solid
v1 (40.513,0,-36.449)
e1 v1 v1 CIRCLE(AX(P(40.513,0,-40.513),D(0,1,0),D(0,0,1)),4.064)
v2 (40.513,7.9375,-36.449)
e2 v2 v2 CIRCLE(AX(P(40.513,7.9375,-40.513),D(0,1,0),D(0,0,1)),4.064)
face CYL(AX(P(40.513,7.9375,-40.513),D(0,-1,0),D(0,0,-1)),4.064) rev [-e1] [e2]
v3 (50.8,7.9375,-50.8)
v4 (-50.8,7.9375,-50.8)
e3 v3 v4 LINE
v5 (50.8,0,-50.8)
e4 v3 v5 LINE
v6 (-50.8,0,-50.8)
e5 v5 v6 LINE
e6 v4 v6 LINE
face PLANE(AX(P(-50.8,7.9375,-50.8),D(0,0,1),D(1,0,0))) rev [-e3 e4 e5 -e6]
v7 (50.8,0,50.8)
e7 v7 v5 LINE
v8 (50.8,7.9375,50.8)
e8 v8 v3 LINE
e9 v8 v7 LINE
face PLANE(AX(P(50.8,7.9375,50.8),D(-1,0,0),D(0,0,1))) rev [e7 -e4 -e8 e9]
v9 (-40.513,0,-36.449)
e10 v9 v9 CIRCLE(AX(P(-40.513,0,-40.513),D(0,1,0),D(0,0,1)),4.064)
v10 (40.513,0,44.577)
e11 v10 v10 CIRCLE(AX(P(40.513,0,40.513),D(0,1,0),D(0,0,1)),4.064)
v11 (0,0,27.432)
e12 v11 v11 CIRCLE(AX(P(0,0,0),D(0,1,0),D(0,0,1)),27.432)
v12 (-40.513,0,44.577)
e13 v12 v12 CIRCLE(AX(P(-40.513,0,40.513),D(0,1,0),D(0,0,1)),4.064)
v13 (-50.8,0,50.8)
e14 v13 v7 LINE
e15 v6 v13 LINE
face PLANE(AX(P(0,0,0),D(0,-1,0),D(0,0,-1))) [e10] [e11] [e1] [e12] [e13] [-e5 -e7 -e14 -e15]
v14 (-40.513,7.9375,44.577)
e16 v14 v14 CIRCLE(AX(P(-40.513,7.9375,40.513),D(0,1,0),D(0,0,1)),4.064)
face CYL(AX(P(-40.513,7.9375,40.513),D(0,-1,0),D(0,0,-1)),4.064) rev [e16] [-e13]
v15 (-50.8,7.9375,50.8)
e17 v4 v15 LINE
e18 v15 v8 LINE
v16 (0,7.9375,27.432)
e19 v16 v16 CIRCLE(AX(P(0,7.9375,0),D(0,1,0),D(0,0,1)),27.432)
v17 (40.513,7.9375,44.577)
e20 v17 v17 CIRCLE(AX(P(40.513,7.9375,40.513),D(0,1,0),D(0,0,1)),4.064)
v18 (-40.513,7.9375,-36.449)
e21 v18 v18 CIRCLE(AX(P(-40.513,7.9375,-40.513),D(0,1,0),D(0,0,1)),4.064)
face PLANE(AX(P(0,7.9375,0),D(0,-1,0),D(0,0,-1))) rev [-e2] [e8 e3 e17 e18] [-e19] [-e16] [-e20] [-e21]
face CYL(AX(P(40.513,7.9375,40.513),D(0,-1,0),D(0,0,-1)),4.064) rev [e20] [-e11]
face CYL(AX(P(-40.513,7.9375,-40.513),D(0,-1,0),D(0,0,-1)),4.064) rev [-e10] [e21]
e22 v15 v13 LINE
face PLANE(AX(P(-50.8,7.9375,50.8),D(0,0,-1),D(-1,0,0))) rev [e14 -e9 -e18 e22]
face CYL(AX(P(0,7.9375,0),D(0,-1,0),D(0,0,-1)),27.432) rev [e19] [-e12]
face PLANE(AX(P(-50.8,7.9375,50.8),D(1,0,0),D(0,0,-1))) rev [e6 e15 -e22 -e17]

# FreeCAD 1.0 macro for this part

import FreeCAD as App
import Part
import Sketcher

V = App.Vector
Q = App.Units.Quantity

doc = App.newDocument("Part")
body = doc.addObject("PartDesign::Body", "Body")

sketch1 = body.newObject("Sketcher::SketchObject", "Sketch")
sketch1.AttachmentSupport = (doc.getObject("XZ_Plane"), [""])
sketch1.MapMode = "FlatFace"
sketch1.addGeometry([
    Part.LineSegment(V(-50.8, -50.8, 0), V(-50.8, 50.8, 0)),
    Part.LineSegment(V(-50.8, 50.8, 0), V(50.8, 50.8, 0)),
    Part.LineSegment(V(50.8, 50.8, 0), V(50.8, -50.8, 0)),
    Part.LineSegment(V(50.8, -50.8, 0), V(-50.8, -50.8, 0)),
    Part.Circle(V(-40.513, 40.513, 0), V(0, 0, 1), 4.064),
    Part.Circle(V(40.513, 40.513, 0), V(0, 0, 1), 4.064),
    Part.Circle(V(-40.513, -40.513, 0), V(0, 0, 1), 4.064),
    Part.Circle(V(0, 0, 0), V(0, 0, 1), 27.432),
    Part.Circle(V(40.513, -40.513, 0), V(0, 0, 1), 4.064),
], False)
sketch1.addConstraint([
    Sketcher.Constraint("Coincident", 0, 2, 1, 1),
    Sketcher.Constraint("Coincident", 1, 2, 2, 1),
    Sketcher.Constraint("Coincident", 2, 2, 3, 1),
    Sketcher.Constraint("Coincident", 3, 2, 0, 1),
    Sketcher.Constraint("Vertical", 0),
    Sketcher.Constraint("Horizontal", 1),
    Sketcher.Constraint("Vertical", 2),
    Sketcher.Constraint("Horizontal", 3),
    Sketcher.Constraint("Coincident", 7, 3, -1, 1),
    Sketcher.Constraint("Equal", 4, 5),
    Sketcher.Constraint("Equal", 5, 6),
    Sketcher.Constraint("Equal", 6, 8),
    Sketcher.Constraint("Symmetric", 5, 3, 6, 3, -1, 1),
    Sketcher.Constraint("Symmetric", 4, 3, 8, 3, -1, 1),
    Sketcher.Constraint("Symmetric", 0, 2, 2, 2, -1, 1),
    Sketcher.Constraint("Symmetric", 4, 3, 5, 3, -2),
    Sketcher.Constraint("Equal", 3, 0),
    Sketcher.Constraint("Diameter", 4, Q("0.32 in")),
    Sketcher.Constraint("Diameter", 7, Q("2.16 in")),
    Sketcher.Constraint("DistanceX", 1, 1, 1, 2, Q("4 in")),
    Sketcher.Constraint("DistanceX", 4, 3, 5, 3, Q("3.19 in")),
    Sketcher.Constraint("DistanceY", 6, 3, 4, 3, Q("3.19 in")),
])
pad1 = body.newObject("PartDesign::Pad", "Pad")
pad1.Profile = sketch1
pad1.Length = Q("0.3125 in")
pad1.Reversed = True

doc.recompute()
